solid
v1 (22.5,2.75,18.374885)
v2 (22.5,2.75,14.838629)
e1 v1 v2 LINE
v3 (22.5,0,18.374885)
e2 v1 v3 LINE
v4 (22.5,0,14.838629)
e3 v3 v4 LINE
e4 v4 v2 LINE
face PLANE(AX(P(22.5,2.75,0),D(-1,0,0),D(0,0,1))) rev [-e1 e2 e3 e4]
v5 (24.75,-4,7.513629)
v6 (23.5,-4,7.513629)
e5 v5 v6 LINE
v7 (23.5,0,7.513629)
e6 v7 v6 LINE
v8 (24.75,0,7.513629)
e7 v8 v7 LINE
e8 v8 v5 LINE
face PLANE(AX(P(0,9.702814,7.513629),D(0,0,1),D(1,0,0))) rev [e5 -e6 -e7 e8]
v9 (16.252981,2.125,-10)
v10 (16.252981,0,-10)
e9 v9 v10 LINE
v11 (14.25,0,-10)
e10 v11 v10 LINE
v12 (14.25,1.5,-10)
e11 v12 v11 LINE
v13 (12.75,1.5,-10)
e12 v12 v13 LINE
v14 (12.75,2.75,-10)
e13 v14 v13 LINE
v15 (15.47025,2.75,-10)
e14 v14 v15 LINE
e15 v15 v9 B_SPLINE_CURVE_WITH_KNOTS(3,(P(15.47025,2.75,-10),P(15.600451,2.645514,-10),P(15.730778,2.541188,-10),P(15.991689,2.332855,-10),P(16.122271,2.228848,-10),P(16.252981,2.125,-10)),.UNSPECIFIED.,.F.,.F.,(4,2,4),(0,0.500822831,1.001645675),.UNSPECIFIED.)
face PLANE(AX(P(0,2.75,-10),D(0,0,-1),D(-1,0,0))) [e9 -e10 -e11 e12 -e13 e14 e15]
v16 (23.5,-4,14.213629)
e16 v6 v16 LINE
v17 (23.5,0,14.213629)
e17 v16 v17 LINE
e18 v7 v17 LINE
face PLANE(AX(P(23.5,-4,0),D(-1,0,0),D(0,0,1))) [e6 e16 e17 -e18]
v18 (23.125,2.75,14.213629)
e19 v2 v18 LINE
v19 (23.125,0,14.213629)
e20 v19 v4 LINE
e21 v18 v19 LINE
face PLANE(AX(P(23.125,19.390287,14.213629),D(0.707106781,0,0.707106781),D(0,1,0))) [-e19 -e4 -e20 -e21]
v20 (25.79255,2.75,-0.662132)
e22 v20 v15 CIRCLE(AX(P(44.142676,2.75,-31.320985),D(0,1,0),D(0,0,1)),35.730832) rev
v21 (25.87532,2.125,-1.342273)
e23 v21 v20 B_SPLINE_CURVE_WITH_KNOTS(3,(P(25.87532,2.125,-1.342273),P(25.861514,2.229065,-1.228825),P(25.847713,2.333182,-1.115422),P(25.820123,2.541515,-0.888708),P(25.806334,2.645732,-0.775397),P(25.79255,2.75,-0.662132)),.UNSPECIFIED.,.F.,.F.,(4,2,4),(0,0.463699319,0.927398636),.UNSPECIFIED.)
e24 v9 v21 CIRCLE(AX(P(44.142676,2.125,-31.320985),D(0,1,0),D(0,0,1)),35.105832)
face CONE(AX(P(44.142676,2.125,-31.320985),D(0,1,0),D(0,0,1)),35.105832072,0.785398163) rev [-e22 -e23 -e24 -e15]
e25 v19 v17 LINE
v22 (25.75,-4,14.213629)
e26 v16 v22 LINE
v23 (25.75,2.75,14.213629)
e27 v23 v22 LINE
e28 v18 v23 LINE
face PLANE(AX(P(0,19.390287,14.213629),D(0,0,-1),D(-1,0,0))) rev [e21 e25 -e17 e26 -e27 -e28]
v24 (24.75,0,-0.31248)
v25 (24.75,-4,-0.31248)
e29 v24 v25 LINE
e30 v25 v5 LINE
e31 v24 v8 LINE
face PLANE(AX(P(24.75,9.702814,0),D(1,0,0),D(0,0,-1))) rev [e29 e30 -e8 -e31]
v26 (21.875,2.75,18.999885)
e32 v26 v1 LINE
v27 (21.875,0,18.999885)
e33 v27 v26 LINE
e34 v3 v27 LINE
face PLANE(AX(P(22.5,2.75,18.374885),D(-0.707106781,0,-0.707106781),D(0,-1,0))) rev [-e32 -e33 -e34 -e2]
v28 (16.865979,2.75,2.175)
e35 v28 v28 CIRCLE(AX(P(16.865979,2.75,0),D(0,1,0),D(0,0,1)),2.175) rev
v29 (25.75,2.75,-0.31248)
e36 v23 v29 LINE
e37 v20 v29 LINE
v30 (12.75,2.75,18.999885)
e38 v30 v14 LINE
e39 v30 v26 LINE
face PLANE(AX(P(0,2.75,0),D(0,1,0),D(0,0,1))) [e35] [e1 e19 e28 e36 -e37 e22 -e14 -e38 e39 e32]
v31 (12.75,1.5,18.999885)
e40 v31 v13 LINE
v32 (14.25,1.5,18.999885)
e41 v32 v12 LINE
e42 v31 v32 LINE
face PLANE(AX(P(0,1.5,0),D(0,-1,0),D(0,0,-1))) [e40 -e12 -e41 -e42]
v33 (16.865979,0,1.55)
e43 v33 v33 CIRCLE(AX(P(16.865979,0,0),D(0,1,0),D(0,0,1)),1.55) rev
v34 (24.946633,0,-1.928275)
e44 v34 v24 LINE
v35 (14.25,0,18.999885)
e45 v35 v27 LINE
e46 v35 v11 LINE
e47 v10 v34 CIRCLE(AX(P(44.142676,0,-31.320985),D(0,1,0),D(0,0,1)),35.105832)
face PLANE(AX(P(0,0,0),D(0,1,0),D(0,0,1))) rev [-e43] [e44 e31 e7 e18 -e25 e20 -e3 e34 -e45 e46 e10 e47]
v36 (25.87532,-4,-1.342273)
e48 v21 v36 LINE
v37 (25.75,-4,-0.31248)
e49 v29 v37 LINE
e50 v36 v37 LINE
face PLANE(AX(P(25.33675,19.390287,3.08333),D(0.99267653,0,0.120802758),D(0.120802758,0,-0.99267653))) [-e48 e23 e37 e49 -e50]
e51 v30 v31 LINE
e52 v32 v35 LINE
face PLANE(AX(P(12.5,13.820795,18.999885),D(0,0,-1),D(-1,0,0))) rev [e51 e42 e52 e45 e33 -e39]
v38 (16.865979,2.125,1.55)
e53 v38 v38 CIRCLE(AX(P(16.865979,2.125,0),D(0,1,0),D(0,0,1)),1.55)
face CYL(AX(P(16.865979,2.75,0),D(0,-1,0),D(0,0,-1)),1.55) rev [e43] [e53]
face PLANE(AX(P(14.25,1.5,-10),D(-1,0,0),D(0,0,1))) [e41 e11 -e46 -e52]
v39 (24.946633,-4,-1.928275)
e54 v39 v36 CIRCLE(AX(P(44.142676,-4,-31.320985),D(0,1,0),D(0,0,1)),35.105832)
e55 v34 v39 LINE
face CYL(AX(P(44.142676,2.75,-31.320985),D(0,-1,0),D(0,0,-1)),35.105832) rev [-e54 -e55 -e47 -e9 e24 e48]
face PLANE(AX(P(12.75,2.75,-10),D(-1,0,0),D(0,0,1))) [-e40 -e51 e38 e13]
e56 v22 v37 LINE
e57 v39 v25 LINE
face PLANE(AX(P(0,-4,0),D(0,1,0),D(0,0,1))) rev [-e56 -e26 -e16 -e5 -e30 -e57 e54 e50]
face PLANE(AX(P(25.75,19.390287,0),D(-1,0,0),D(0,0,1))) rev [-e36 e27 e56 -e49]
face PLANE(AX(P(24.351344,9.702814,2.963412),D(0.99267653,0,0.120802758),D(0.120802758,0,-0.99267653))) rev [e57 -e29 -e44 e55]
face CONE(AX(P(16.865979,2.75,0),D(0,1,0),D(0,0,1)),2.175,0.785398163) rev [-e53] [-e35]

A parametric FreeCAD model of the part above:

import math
import FreeCAD as App
import Part
import Sketcher

V = App.Vector
Q = App.Units.Quantity


def edges_at(feature, points):
    """Names of the edges that pass closest to the given points."""
    edges = feature.Shape.Edges
    near = lambda p: min(range(len(edges)), key=lambda i: edges[i].distToShape(Part.Vertex(*p))[0])
    return sorted({f"Edge{near(p) + 1}" for p in points})


def add_polygon(sketch, points):
    """Adds a closed chain of lines whose ends are joined by coincident constraints."""
    first, n = sketch.GeometryCount, len(points)
    for a, b in zip(points, points[1:] + points[:1]):
        sketch.addGeometry(Part.LineSegment(App.Vector(*a, 0), App.Vector(*b, 0)), False)
    for i in range(n):
        sketch.addConstraint(Sketcher.Constraint("Coincident", first + i, 2, first + (i + 1) % n, 1))

doc = App.newDocument("Part")
body = doc.addObject("PartDesign::Body", "Body")

sketch1 = doc.addObject("Sketcher::SketchObject", "Sketch")
body.addObject(sketch1)
sketch1.AttachmentSupport = (doc.XZ_Plane, [""])
sketch1.MapMode = "FlatFace"
sketch1.addGeometry([
    Part.LineSegment(V(22.5, 14.2, 0), V(22.5, 7.3, 0)),
    Part.LineSegment(V(22.5, 7.3, 0), V(24.5, 7.3, 0)),
    Part.LineSegment(V(24.5, 7.3, 0), V(24.5, -0.3, 0)),
    Part.LineSegment(V(24.5, -0.3, 0), V(24.7, -2.1, 0)),
    Part.ArcOfCircle(Part.Circle(V(44.1, -31.3, 0), V(0, 0, 1), 35.1), math.radians(123.6), math.radians(142.6)),
    Part.LineSegment(V(16.3, -10, 0), V(12.5, -10, 0)),
    Part.LineSegment(V(12.5, -10, 0), V(12.5, 14.2, 0)),
    Part.LineSegment(V(12.5, 14.2, 0), V(22.5, 14.2, 0)),
    Part.Circle(V(16.9, 0, 0), V(0, 0, 1), 1.6),
], False)
sketch1.addConstraint([
    Sketcher.Constraint("Coincident", 0, 2, 1, 1),
    Sketcher.Constraint("Coincident", 1, 2, 2, 1),
    Sketcher.Constraint("Coincident", 2, 2, 3, 1),
    Sketcher.Constraint("Coincident", 3, 2, 4, 1),
    Sketcher.Constraint("Coincident", 4, 2, 5, 1),
    Sketcher.Constraint("Coincident", 5, 2, 6, 1),
    Sketcher.Constraint("Coincident", 6, 2, 7, 1),
    Sketcher.Constraint("Coincident", 7, 2, 0, 1),
    Sketcher.Constraint("Vertical", 0),
    Sketcher.Constraint("Horizontal", 1),
    Sketcher.Constraint("Vertical", 2),
    Sketcher.Constraint("Horizontal", 5),
    Sketcher.Constraint("Vertical", 6),
    Sketcher.Constraint("Horizontal", 7),
    Sketcher.Constraint("PointOnObject", 8, 3, -1),
    Sketcher.Constraint("Diameter", 8, Q("3.1 mm")),
    Sketcher.Constraint("DistanceX", 1, 1, 1, 2, Q("2 mm")),
    Sketcher.Constraint("DistanceX", 7, 1, 7, 2, Q("10 mm")),
    Sketcher.Constraint("DistanceY", 4, 2, -1, 1, Q("10 mm")),
    Sketcher.Constraint("DistanceX", -1, 1, 0, 2, Q("22.5 mm")),
    Sketcher.Constraint("Radius", 4, Q("35.105832 mm")),
    Sketcher.Constraint("DistanceX", 4, 2, 8, 3, Q("0.612998 mm")),
    Sketcher.Constraint("Distance", 3, Q("1.781302 mm")),
    Sketcher.Constraint("DistanceX", 5, 2, 5, 1, Q("3.752981 mm")),
    Sketcher.Constraint("DistanceY", 2, 2, 2, 1, Q("7.576109 mm")),
    Sketcher.Constraint("DistanceY", 0, 2, 0, 1, Q("6.986256 mm")),
    Sketcher.Constraint("DistanceY", 6, 1, 6, 2, Q("24.249885 mm")),
    Sketcher.Constraint("DistanceX", 3, 2, 4, 3, Q("19.427489 mm")),
])
pad1 = doc.addObject("PartDesign::Pad", "Pad")
body.addObject(pad1)
pad1.Profile = sketch1
pad1.Length = 2.75
pad1.Reversed = True

sketch2 = doc.addObject("Sketcher::SketchObject", "Sketch001")
body.addObject(sketch2)
sketch2.AttachmentSupport = (doc.XZ_Plane, [""])
sketch2.MapMode = "FlatFace"
add_polygon(sketch2, [(12.5, 14.2), (12.5, 19), (22.5, 19), (22.5, 14.2)])
sketch2.addConstraint([
    Sketcher.Constraint("Vertical", 0),
    Sketcher.Constraint("Horizontal", 1),
    Sketcher.Constraint("Vertical", 2),
    Sketcher.Constraint("Horizontal", 3),
    Sketcher.Constraint("DistanceX", 1, 1, 1, 2, Q("10 mm")),
    Sketcher.Constraint("DistanceY", 0, 1, 0, 2, Q("4.75 mm")),
    Sketcher.Constraint("DistanceX", -1, 1, 0, 2, Q("12.5 mm")),
    Sketcher.Constraint("DistanceY", -1, 1, 0, 2, Q("18.999885 mm")),
])
pad2 = doc.addObject("PartDesign::Pad", "Pad001")
body.addObject(pad2)
pad2.Profile = sketch2
pad2.Length = 2.75
pad2.Reversed = True

sketch3 = doc.addObject("Sketcher::SketchObject", "Sketch002")
body.addObject(sketch3)
sketch3.AttachmentSupport = (doc.XZ_Plane, [""])
sketch3.MapMode = "FlatFace"
sketch3.addGeometry([
    Part.ArcOfCircle(Part.Circle(V(44.1, -31.3, 0), V(0, 0, 1), 35.1), math.radians(121.36), math.radians(123.6)),
    Part.LineSegment(V(24.7, -2.1, 0), V(24.5, -0.3, 0)),
    Part.LineSegment(V(24.5, -0.3, 0), V(24.5, 7.3, 0)),
    Part.LineSegment(V(24.5, 7.3, 0), V(22.5, 7.3, 0)),
    Part.LineSegment(V(22.5, 7.3, 0), V(22.5, 14.2, 0)),
    Part.LineSegment(V(22.5, 14.2, 0), V(25.8, 14.2, 0)),
    Part.LineSegment(V(25.8, 14.2, 0), V(25.8, -0.3, 0)),
    Part.LineSegment(V(25.8, -0.3, 0), V(25.9, -1.3, 0)),
], False)
sketch3.addConstraint([
    Sketcher.Constraint("Coincident", 0, 2, 1, 1),
    Sketcher.Constraint("Coincident", 1, 2, 2, 1),
    Sketcher.Constraint("Coincident", 2, 2, 3, 1),
    Sketcher.Constraint("Coincident", 3, 2, 4, 1),
    Sketcher.Constraint("Coincident", 4, 2, 5, 1),
    Sketcher.Constraint("Coincident", 5, 2, 6, 1),
    Sketcher.Constraint("Coincident", 6, 2, 7, 1),
    Sketcher.Constraint("Coincident", 7, 2, 0, 1),
    Sketcher.Constraint("Vertical", 2),
    Sketcher.Constraint("Horizontal", 3),
    Sketcher.Constraint("Vertical", 4),
    Sketcher.Constraint("Horizontal", 5),
    Sketcher.Constraint("Vertical", 6),
    Sketcher.Constraint("Parallel", 1, 7),
    Sketcher.Constraint("Horizontal", 1, 2, 6, 2),
    Sketcher.Constraint("DistanceX", 3, 2, 3, 1, Q("2 mm")),
    Sketcher.Constraint("DistanceX", 5, 1, 5, 2, Q("3.25 mm")),
    Sketcher.Constraint("DistanceY", 4, 1, 4, 2, Q("6.95 mm")),
    Sketcher.Constraint("DistanceX", -1, 1, 1, 2, Q("24.5 mm")),
    Sketcher.Constraint("Radius", 0, Q("35.105833 mm")),
    Sketcher.Constraint("Distance", 1, Q("1.781302 mm")),
    Sketcher.Constraint("DistanceY", 2, 1, 2, 2, Q("7.576109 mm")),
    Sketcher.Constraint("Distance", 7, Q("1.03739 mm")),
    Sketcher.Constraint("DistanceY", 1, 2, -1, 1, Q("0.31248 mm")),
    Sketcher.Constraint("DistanceX", -1, 1, 7, 2, Q("25.87532 mm")),
])
pad3 = doc.addObject("PartDesign::Pad", "Pad002")
body.addObject(pad3)
pad3.Profile = sketch3
pad3.Length = 2.75
pad3.Reversed = True

sketch4 = doc.addObject("Sketcher::SketchObject", "Sketch003")
body.addObject(sketch4)
sketch4.AttachmentSupport = (doc.XZ_Plane, [""])
sketch4.MapMode = "FlatFace"
sketch4.AttachmentOffset = App.Placement(V(0, 0, 4), App.Rotation())
sketch4.addGeometry([
    Part.LineSegment(V(23.5, 7.3, 0), V(23.5, 14.2, 0)),
    Part.LineSegment(V(23.5, 14.2, 0), V(25.8, 14.2, 0)),
    Part.LineSegment(V(25.8, 14.2, 0), V(25.8, -0.3, 0)),
    Part.LineSegment(V(25.8, -0.3, 0), V(25.9, -1.3, 0)),
    Part.ArcOfCircle(Part.Circle(V(44.1, -31.3, 0), V(0, 0, 1), 35.1), math.radians(121.36), math.radians(123.6)),
    Part.LineSegment(V(24.7, -2.1, 0), V(24.5, -0.3, 0)),
    Part.LineSegment(V(24.5, -0.3, 0), V(24.5, 7.3, 0)),
    Part.LineSegment(V(24.5, 7.3, 0), V(23.5, 7.3, 0)),
], False)
sketch4.addConstraint([
    Sketcher.Constraint("Coincident", 0, 2, 1, 1),
    Sketcher.Constraint("Coincident", 1, 2, 2, 1),
    Sketcher.Constraint("Coincident", 2, 2, 3, 1),
    Sketcher.Constraint("Coincident", 3, 2, 4, 1),
    Sketcher.Constraint("Coincident", 4, 2, 5, 1),
    Sketcher.Constraint("Coincident", 5, 2, 6, 1),
    Sketcher.Constraint("Coincident", 6, 2, 7, 1),
    Sketcher.Constraint("Coincident", 7, 2, 0, 1),
    Sketcher.Constraint("Vertical", 0),
    Sketcher.Constraint("Horizontal", 1),
    Sketcher.Constraint("Vertical", 2),
    Sketcher.Constraint("Vertical", 6),
    Sketcher.Constraint("Horizontal", 7),
    Sketcher.Constraint("Parallel", 3, 5),
    Sketcher.Constraint("Horizontal", 2, 2, 5, 2),
    Sketcher.Constraint("DistanceX", 7, 2, 7, 1, Q("1 mm")),
    Sketcher.Constraint("DistanceX", 1, 1, 1, 2, Q("2.25 mm")),
    Sketcher.Constraint("DistanceY", 0, 1, 0, 2, Q("6.95 mm")),
    Sketcher.Constraint("DistanceX", -1, 1, 0, 2, Q("23.5 mm")),
    Sketcher.Constraint("Radius", 4, Q("35.105833 mm")),
    Sketcher.Constraint("Distance", 5, Q("1.781302 mm")),
    Sketcher.Constraint("DistanceY", 2, 2, 2, 1, Q("14.526109 mm")),
    Sketcher.Constraint("Distance", 3, Q("1.03739 mm")),
    Sketcher.Constraint("DistanceY", -1, 1, 0, 2, Q("14.213629 mm")),
    Sketcher.Constraint("DistanceX", -1, 1, 3, 2, Q("25.87532 mm")),
])
pad4 = doc.addObject("PartDesign::Pad", "Pad003")
body.addObject(pad4)
pad4.Profile = sketch4
pad4.Length = 4
pad4.Reversed = True

sketch5 = doc.addObject("Sketcher::SketchObject", "Sketch004")
body.addObject(sketch5)
sketch5.AttachmentSupport = (doc.XZ_Plane, [""])
sketch5.MapMode = "FlatFace"
add_polygon(sketch5, [(12.5, -10), (12.5, 19), (14.2, 19), (14.2, -10)])
sketch5.addConstraint([
    Sketcher.Constraint("Vertical", 0),
    Sketcher.Constraint("Horizontal", 1),
    Sketcher.Constraint("Vertical", 2),
    Sketcher.Constraint("Horizontal", 3),
    Sketcher.Constraint("DistanceY", 2, 2, -1, 1, Q("10 mm")),
    Sketcher.Constraint("DistanceX", 1, 1, 1, 2, Q("1.75 mm")),
    Sketcher.Constraint("DistanceX", -1, 1, 0, 2, Q("12.5 mm")),
    Sketcher.Constraint("DistanceY", 0, 1, 0, 2, Q("28.999885 mm")),
])
pocket1 = doc.addObject("PartDesign::Pocket", "Pocket")
body.addObject(pocket1)
pocket1.Profile = sketch5
pocket1.Length = 1.5

sketch6 = doc.addObject("Sketcher::SketchObject", "Sketch005")
body.addObject(sketch6)
sketch6.AttachmentSupport = (doc.XZ_Plane, [""])
sketch6.MapMode = "FlatFace"
add_polygon(sketch6, [(12.5, -10), (12.5, 19), (12.75, 19), (12.75, -10)])
sketch6.addConstraint([
    Sketcher.Constraint("Vertical", 0),
    Sketcher.Constraint("Horizontal", 1),
    Sketcher.Constraint("Vertical", 2),
    Sketcher.Constraint("Horizontal", 3),
    Sketcher.Constraint("DistanceY", 2, 2, -1, 1, Q("10 mm")),
    Sketcher.Constraint("DistanceX", 1, 1, 1, 2, Q("0.25 mm")),
    Sketcher.Constraint("DistanceX", -1, 1, 0, 2, Q("12.5 mm")),
    Sketcher.Constraint("DistanceY", 0, 1, 0, 2, Q("28.999885 mm")),
])
pocket2 = doc.addObject("PartDesign::Pocket", "Pocket001")
body.addObject(pocket2)
pocket2.Profile = sketch6
pocket2.Type = "ThroughAll"
doc.recompute()

chamfer = doc.addObject("PartDesign::Chamfer", "Chamfer")
body.addObject(chamfer)
chamfer.Base = (pocket2, edges_at(pocket2, [
    (22.5, 1.375, 19),
    (22.5, 1.375, 14.214),
    (16.866, 2.75, -1.55),
    (20.155, 2.75, -5.689),
]))
chamfer.Size = 0.625

sketch7 = doc.addObject("Sketcher::SketchObject", "Sketch006")
body.addObject(sketch7)
sketch7.AttachmentSupport = (doc.XZ_Plane, [""])
sketch7.MapMode = "FlatFace"
sketch7.AttachmentOffset = App.Placement(V(0, 0, 4), App.Rotation())
sketch7.addGeometry([
    Part.LineSegment(V(24.5, -0.31, 0), V(24.72, -2.08, 0)),
    Part.ArcOfCircle(Part.Circle(V(44.14, -31.32, 0), V(0, 0, 1), 35.11), math.radians(123.15), math.radians(123.6)),
    Part.LineSegment(V(24.95, -1.93, 0), V(24.75, -0.31, 0)),
    Part.LineSegment(V(24.75, -0.31, 0), V(24.75, 7.51, 0)),
    Part.LineSegment(V(24.75, 7.51, 0), V(23.5, 7.51, 0)),
    Part.LineSegment(V(23.5, 7.51, 0), V(23.5, 7.26, 0)),
    Part.LineSegment(V(23.5, 7.26, 0), V(24.5, 7.26, 0)),
    Part.LineSegment(V(24.5, 7.26, 0), V(24.5, -0.31, 0)),
], False)
sketch7.addConstraint([
    Sketcher.Constraint("Coincident", 0, 2, 1, 2),
    Sketcher.Constraint("Coincident", 1, 1, 2, 1),
    Sketcher.Constraint("Coincident", 2, 2, 3, 1),
    Sketcher.Constraint("Coincident", 3, 2, 4, 1),
    Sketcher.Constraint("Coincident", 4, 2, 5, 1),
    Sketcher.Constraint("Coincident", 5, 2, 6, 1),
    Sketcher.Constraint("Coincident", 6, 2, 7, 1),
    Sketcher.Constraint("Coincident", 7, 2, 0, 1),
    Sketcher.Constraint("Vertical", 3),
    Sketcher.Constraint("Horizontal", 4),
    Sketcher.Constraint("Vertical", 5),
    Sketcher.Constraint("Horizontal", 6),
    Sketcher.Constraint("Vertical", 7),
    Sketcher.Constraint("Parallel", 0, 2),
    Sketcher.Constraint("Horizontal", 2, 2, 7, 2),
    Sketcher.Constraint("DistanceX", 6, 1, 6, 2, Q("1 mm")),
    Sketcher.Constraint("DistanceX", 4, 2, 4, 1, Q("1.25 mm")),
    Sketcher.Constraint("DistanceY", 5, 2, 5, 1, Q("0.25 mm")),
    Sketcher.Constraint("DistanceX", -1, 1, 4, 2, Q("23.5 mm")),
    Sketcher.Constraint("Radius", 1, Q("35.105909 mm")),
    Sketcher.Constraint("Distance", 0, Q("1.781302 mm")),
    Sketcher.Constraint("DistanceY", 3, 1, 3, 2, Q("7.826109 mm")),
    Sketcher.Constraint("DistanceY", 1, 3, -1, 1, Q("31.321049 mm")),
    Sketcher.Constraint("DistanceY", 2, 2, -1, 1, Q("0.31248 mm")),
    Sketcher.Constraint("DistanceX", 0, 2, 1, 3, Q("19.427532 mm")),
])
pocket3 = doc.addObject("PartDesign::Pocket", "Pocket002")
body.addObject(pocket3)
pocket3.Profile = sketch7
pocket3.Length = 4

doc.recompute()
